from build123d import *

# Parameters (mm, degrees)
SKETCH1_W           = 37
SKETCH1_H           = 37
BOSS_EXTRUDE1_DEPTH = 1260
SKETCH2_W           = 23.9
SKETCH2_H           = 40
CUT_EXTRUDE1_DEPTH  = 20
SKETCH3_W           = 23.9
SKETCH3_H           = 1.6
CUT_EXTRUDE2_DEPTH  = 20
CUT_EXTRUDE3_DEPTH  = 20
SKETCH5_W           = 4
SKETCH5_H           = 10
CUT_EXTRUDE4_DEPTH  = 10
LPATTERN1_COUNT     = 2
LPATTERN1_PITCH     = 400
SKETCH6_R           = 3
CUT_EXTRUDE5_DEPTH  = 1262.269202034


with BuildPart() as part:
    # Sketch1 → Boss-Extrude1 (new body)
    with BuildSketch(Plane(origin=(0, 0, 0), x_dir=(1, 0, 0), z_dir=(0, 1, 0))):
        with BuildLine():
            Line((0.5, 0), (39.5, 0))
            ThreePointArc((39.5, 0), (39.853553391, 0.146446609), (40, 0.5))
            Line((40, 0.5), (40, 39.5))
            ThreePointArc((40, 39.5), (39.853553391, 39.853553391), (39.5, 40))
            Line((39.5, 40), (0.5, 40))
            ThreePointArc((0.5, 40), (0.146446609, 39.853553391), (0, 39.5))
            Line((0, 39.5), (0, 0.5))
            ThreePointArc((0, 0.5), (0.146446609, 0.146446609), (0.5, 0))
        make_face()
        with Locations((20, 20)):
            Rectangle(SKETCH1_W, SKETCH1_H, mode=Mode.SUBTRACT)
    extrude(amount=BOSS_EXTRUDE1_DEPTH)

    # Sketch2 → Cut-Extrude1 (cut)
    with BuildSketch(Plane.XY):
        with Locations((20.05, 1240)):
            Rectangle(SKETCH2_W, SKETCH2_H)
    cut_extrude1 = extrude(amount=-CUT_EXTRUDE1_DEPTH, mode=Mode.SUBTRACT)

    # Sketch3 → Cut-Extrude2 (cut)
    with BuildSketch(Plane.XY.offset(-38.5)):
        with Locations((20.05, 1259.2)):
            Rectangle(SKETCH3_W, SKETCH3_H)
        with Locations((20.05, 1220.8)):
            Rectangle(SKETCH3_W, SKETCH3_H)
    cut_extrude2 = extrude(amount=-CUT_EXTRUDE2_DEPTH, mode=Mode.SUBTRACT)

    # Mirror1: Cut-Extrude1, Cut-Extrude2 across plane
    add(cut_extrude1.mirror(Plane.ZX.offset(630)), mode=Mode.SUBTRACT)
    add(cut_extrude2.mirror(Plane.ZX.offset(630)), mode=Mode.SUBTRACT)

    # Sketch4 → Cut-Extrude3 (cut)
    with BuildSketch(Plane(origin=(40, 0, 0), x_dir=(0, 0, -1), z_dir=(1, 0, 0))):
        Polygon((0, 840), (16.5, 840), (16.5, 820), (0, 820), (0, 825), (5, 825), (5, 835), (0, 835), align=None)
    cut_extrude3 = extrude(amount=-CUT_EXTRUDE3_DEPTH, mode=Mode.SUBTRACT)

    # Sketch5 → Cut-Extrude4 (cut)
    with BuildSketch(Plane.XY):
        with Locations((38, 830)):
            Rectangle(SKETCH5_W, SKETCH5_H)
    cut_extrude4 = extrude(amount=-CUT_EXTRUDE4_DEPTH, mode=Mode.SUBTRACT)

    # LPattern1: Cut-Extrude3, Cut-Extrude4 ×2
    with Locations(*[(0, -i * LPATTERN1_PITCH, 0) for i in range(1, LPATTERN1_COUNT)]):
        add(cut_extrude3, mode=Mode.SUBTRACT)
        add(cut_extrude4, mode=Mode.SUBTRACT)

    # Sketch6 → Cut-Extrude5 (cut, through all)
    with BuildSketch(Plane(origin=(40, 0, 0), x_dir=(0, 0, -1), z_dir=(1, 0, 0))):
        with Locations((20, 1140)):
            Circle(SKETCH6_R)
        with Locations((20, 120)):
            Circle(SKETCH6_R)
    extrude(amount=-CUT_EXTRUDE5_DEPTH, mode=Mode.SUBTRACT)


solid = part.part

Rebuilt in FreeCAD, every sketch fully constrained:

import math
import FreeCAD as App
import Part
import Sketcher
from FreeCAD import Vector

doc = App.newDocument("Part")
body = doc.addObject("PartDesign::Body", "Body")

# Sketch on XZ plane
sketch1 = doc.addObject("Sketcher::SketchObject", "Sketch")
body.addObject(sketch1)
sketch1.AttachmentSupport = (doc.XZ_Plane, [""])
sketch1.MapMode = "FlatFace"
sketch1.addGeometry(Part.LineSegment(Vector(0.5, 0, 0), Vector(39.5, 0, 0)), False)
sketch1.addGeometry(Part.ArcOfCircle(Part.Circle(Vector(39.5, -0.5, 0), Vector(0, 0, 1), 0.5), math.radians(0), math.radians(90)), False)
sketch1.addGeometry(Part.LineSegment(Vector(40, -0.5, 0), Vector(40, -39.5, 0)), False)
sketch1.addGeometry(Part.ArcOfCircle(Part.Circle(Vector(39.5, -39.5, 0), Vector(0, 0, 1), 0.5), math.radians(-90), math.radians(0)), False)
sketch1.addGeometry(Part.LineSegment(Vector(39.5, -40, 0), Vector(0.5, -40, 0)), False)
sketch1.addGeometry(Part.ArcOfCircle(Part.Circle(Vector(0.5, -39.5, 0), Vector(0, 0, 1), 0.5), math.radians(180), math.radians(270)), False)
sketch1.addGeometry(Part.LineSegment(Vector(0, -39.5, 0), Vector(0, -0.5, 0)), False)
sketch1.addGeometry(Part.ArcOfCircle(Part.Circle(Vector(0.5, -0.5, 0), Vector(0, 0, 1), 0.5), math.radians(90), math.radians(180)), False)
sketch1.addGeometry(Part.LineSegment(Vector(38.5, -1.5, 0), Vector(1.5, -1.5, 0)), False)
sketch1.addGeometry(Part.LineSegment(Vector(1.5, -1.5, 0), Vector(1.5, -38.5, 0)), False)
sketch1.addGeometry(Part.LineSegment(Vector(1.5, -38.5, 0), Vector(38.5, -38.5, 0)), False)
sketch1.addGeometry(Part.LineSegment(Vector(38.5, -38.5, 0), Vector(38.5, -1.5, 0)), False)
sketch1.addConstraint(Sketcher.Constraint("Tangent", 0, 2, 1, 2))
sketch1.addConstraint(Sketcher.Constraint("Tangent", 1, 1, 2, 1))
sketch1.addConstraint(Sketcher.Constraint("Tangent", 2, 2, 3, 2))
sketch1.addConstraint(Sketcher.Constraint("Tangent", 3, 1, 4, 1))
sketch1.addConstraint(Sketcher.Constraint("Tangent", 4, 2, 5, 2))
sketch1.addConstraint(Sketcher.Constraint("Tangent", 5, 1, 6, 1))
sketch1.addConstraint(Sketcher.Constraint("Tangent", 6, 2, 7, 2))
sketch1.addConstraint(Sketcher.Constraint("Tangent", 7, 1, 0, 1))
sketch1.addConstraint(Sketcher.Constraint("Coincident", 8, 2, 9, 1))
sketch1.addConstraint(Sketcher.Constraint("Coincident", 9, 2, 10, 1))
sketch1.addConstraint(Sketcher.Constraint("Coincident", 10, 2, 11, 1))
sketch1.addConstraint(Sketcher.Constraint("Coincident", 11, 2, 8, 1))
sketch1.addConstraint(Sketcher.Constraint("Horizontal", 0))
sketch1.addConstraint(Sketcher.Constraint("Vertical", 2))
sketch1.addConstraint(Sketcher.Constraint("Horizontal", 4))
sketch1.addConstraint(Sketcher.Constraint("Vertical", 6))
sketch1.addConstraint(Sketcher.Constraint("Horizontal", 8))
sketch1.addConstraint(Sketcher.Constraint("Vertical", 9))
sketch1.addConstraint(Sketcher.Constraint("Horizontal", 10))
sketch1.addConstraint(Sketcher.Constraint("Vertical", 11))
sketch1.addConstraint(Sketcher.Constraint("Equal", 1, 3))
sketch1.addConstraint(Sketcher.Constraint("Equal", 3, 5))
sketch1.addConstraint(Sketcher.Constraint("Equal", 5, 7))
sketch1.addConstraint(Sketcher.Constraint("PointOnObject", 0, 2, -1))
sketch1.addConstraint(Sketcher.Constraint("PointOnObject", 5, 1, -2))
sketch1.addConstraint(Sketcher.Constraint("Equal", 4, 2))
sketch1.addConstraint(Sketcher.Constraint("Equal", 10, 9))
sketch1.addConstraint(Sketcher.Constraint("Radius", 1, 0.5))
sketch1.addConstraint(Sketcher.Constraint("DistanceX", 0, 1, 0, 2, 39.0))
sketch1.addConstraint(Sketcher.Constraint("DistanceX", 8, 2, 8, 1, 37.0))
sketch1.addConstraint(Sketcher.Constraint("DistanceX", 7, 3, 8, 2, 1.0))
sketch1.addConstraint(Sketcher.Constraint("DistanceY", 8, 2, 7, 3, 1.0))
pad1 = doc.addObject("PartDesign::Pad", "Pad")
body.addObject(pad1)
pad1.Profile = sketch1
pad1.Length = 1260
pad1.Reversed = True

# Sketch on XY plane
sketch2 = doc.addObject("Sketcher::SketchObject", "Sketch001")
body.addObject(sketch2)
sketch2.AttachmentSupport = (doc.XY_Plane, [""])
sketch2.MapMode = "FlatFace"
sketch2.addGeometry(Part.LineSegment(Vector(8, 1260, 0), Vector(8, 1220, 0)), False)
sketch2.addGeometry(Part.LineSegment(Vector(8, 1220, 0), Vector(32, 1220, 0)), False)
sketch2.addGeometry(Part.LineSegment(Vector(32, 1220, 0), Vector(32, 1260, 0)), False)
sketch2.addGeometry(Part.LineSegment(Vector(32, 1260, 0), Vector(8, 1260, 0)), False)
sketch2.addConstraint(Sketcher.Constraint("Coincident", 0, 2, 1, 1))
sketch2.addConstraint(Sketcher.Constraint("Coincident", 1, 2, 2, 1))
sketch2.addConstraint(Sketcher.Constraint("Coincident", 2, 2, 3, 1))
sketch2.addConstraint(Sketcher.Constraint("Coincident", 3, 2, 0, 1))
sketch2.addConstraint(Sketcher.Constraint("Vertical", 0))
sketch2.addConstraint(Sketcher.Constraint("Horizontal", 1))
sketch2.addConstraint(Sketcher.Constraint("Vertical", 2))
sketch2.addConstraint(Sketcher.Constraint("Horizontal", 3))
sketch2.addConstraint(Sketcher.Constraint("DistanceY", 0, 2, 0, 1, 40.0))
sketch2.addConstraint(Sketcher.Constraint("DistanceX", 1, 1, 1, 2, 23.9))
sketch2.addConstraint(Sketcher.Constraint("DistanceY", -1, 1, 0, 2, 1220.0))
sketch2.addConstraint(Sketcher.Constraint("DistanceX", -1, 1, 1, 2, 32.0))
pocket1 = doc.addObject("PartDesign::Pocket", "Pocket")
body.addObject(pocket1)
pocket1.Profile = sketch2
pocket1.Length = 20

# Sketch on XY plane
sketch3 = doc.addObject("Sketcher::SketchObject", "Sketch002")
body.addObject(sketch3)
sketch3.AttachmentSupport = (doc.XY_Plane, [""])
sketch3.MapMode = "FlatFace"
sketch3.AttachmentOffset = App.Placement(Vector(0, 0, -38.5), App.Rotation())
sketch3.addGeometry(Part.LineSegment(Vector(8.1, 1260, 0), Vector(8.1, 1258.4, 0)), False)
sketch3.addGeometry(Part.LineSegment(Vector(8.1, 1258.4, 0), Vector(32, 1258.4, 0)), False)
sketch3.addGeometry(Part.LineSegment(Vector(32, 1258.4, 0), Vector(32, 1260, 0)), False)
sketch3.addGeometry(Part.LineSegment(Vector(32, 1260, 0), Vector(8.1, 1260, 0)), False)
sketch3.addGeometry(Part.LineSegment(Vector(8.1, 1221.6, 0), Vector(8.1, 1220, 0)), False)
sketch3.addGeometry(Part.LineSegment(Vector(8.1, 1220, 0), Vector(32, 1220, 0)), False)
sketch3.addGeometry(Part.LineSegment(Vector(32, 1220, 0), Vector(32, 1221.6, 0)), False)
sketch3.addGeometry(Part.LineSegment(Vector(32, 1221.6, 0), Vector(8.1, 1221.6, 0)), False)
sketch3.addConstraint(Sketcher.Constraint("Coincident", 0, 2, 1, 1))
sketch3.addConstraint(Sketcher.Constraint("Coincident", 1, 2, 2, 1))
sketch3.addConstraint(Sketcher.Constraint("Coincident", 2, 2, 3, 1))
sketch3.addConstraint(Sketcher.Constraint("Coincident", 3, 2, 0, 1))
sketch3.addConstraint(Sketcher.Constraint("Coincident", 4, 2, 5, 1))
sketch3.addConstraint(Sketcher.Constraint("Coincident", 5, 2, 6, 1))
sketch3.addConstraint(Sketcher.Constraint("Coincident", 6, 2, 7, 1))
sketch3.addConstraint(Sketcher.Constraint("Coincident", 7, 2, 4, 1))
sketch3.addConstraint(Sketcher.Constraint("Vertical", 0))
sketch3.addConstraint(Sketcher.Constraint("Horizontal", 1))
sketch3.addConstraint(Sketcher.Constraint("Vertical", 2))
sketch3.addConstraint(Sketcher.Constraint("Horizontal", 3))
sketch3.addConstraint(Sketcher.Constraint("Vertical", 4))
sketch3.addConstraint(Sketcher.Constraint("Horizontal", 5))
sketch3.addConstraint(Sketcher.Constraint("Vertical", 6))
sketch3.addConstraint(Sketcher.Constraint("Horizontal", 7))
sketch3.addConstraint(Sketcher.Constraint("Vertical", 3, 2, 4, 2))
sketch3.addConstraint(Sketcher.Constraint("Vertical", 2, 2, 5, 2))
sketch3.addConstraint(Sketcher.Constraint("Equal", 2, 4))
sketch3.addConstraint(Sketcher.Constraint("DistanceX", 1, 1, 1, 2, 23.9))
sketch3.addConstraint(Sketcher.Constraint("DistanceY", 0, 2, 0, 1, 1.6))
sketch3.addConstraint(Sketcher.Constraint("DistanceX", -1, 1, 1, 2, 32.0))
sketch3.addConstraint(Sketcher.Constraint("DistanceY", -1, 1, 2, 2, 1260.0))
sketch3.addConstraint(Sketcher.Constraint("DistanceY", -1, 1, 4, 2, 1220.0))
pocket2 = doc.addObject("PartDesign::Pocket", "Pocket001")
body.addObject(pocket2)
pocket2.Profile = sketch3
pocket2.Length = 20
doc.recompute()

datumplane = doc.addObject("PartDesign::Plane", "DatumPlane")
body.addObject(datumplane)
datumplane.AttachmentSupport = (doc.XZ_Plane, [""])
datumplane.MapMode = "FlatFace"
datumplane.AttachmentOffset = App.Placement(Vector(0, 0, -630), App.Rotation())
mirrored = doc.addObject("PartDesign::Mirrored", "Mirrored")
body.addObject(mirrored)
mirrored.Originals = [pocket1, pocket2]
mirrored.MirrorPlane = (datumplane, [""])
body.Tip = mirrored

# Sketch on YZ plane
sketch4 = doc.addObject("Sketcher::SketchObject", "Sketch003")
body.addObject(sketch4)
sketch4.AttachmentSupport = (doc.YZ_Plane, [""])
sketch4.MapMode = "FlatFace"
sketch4.AttachmentOffset = App.Placement(Vector(0, 0, 40), App.Rotation())
sketch4.addGeometry(Part.LineSegment(Vector(840, -16, 0), Vector(840, 0, 0)), False)
sketch4.addGeometry(Part.LineSegment(Vector(840, 0, 0), Vector(835, 0, 0)), False)
sketch4.addGeometry(Part.LineSegment(Vector(835, 0, 0), Vector(835, -5, 0)), False)
sketch4.addGeometry(Part.LineSegment(Vector(835, -5, 0), Vector(825, -5, 0)), False)
sketch4.addGeometry(Part.LineSegment(Vector(825, -5, 0), Vector(825, 0, 0)), False)
sketch4.addGeometry(Part.LineSegment(Vector(825, 0, 0), Vector(820, 0, 0)), False)
sketch4.addGeometry(Part.LineSegment(Vector(820, 0, 0), Vector(820, -16, 0)), False)
sketch4.addGeometry(Part.LineSegment(Vector(820, -16, 0), Vector(840, -16, 0)), False)
sketch4.addConstraint(Sketcher.Constraint("Coincident", 0, 2, 1, 1))
sketch4.addConstraint(Sketcher.Constraint("Coincident", 1, 2, 2, 1))
sketch4.addConstraint(Sketcher.Constraint("Coincident", 2, 2, 3, 1))
sketch4.addConstraint(Sketcher.Constraint("Coincident", 3, 2, 4, 1))
sketch4.addConstraint(Sketcher.Constraint("Coincident", 4, 2, 5, 1))
sketch4.addConstraint(Sketcher.Constraint("Coincident", 5, 2, 6, 1))
sketch4.addConstraint(Sketcher.Constraint("Coincident", 6, 2, 7, 1))
sketch4.addConstraint(Sketcher.Constraint("Coincident", 7, 2, 0, 1))
sketch4.addConstraint(Sketcher.Constraint("Vertical", 0))
sketch4.addConstraint(Sketcher.Constraint("Horizontal", 1))
sketch4.addConstraint(Sketcher.Constraint("Vertical", 2))
sketch4.addConstraint(Sketcher.Constraint("Horizontal", 3))
sketch4.addConstraint(Sketcher.Constraint("Vertical", 4))
sketch4.addConstraint(Sketcher.Constraint("Horizontal", 5))
sketch4.addConstraint(Sketcher.Constraint("Vertical", 6))
sketch4.addConstraint(Sketcher.Constraint("Horizontal", 7))
sketch4.addConstraint(Sketcher.Constraint("PointOnObject", 0, 2, -1))
sketch4.addConstraint(Sketcher.Constraint("PointOnObject", 4, 2, -1))
sketch4.addConstraint(Sketcher.Constraint("Equal", 1, 5))
sketch4.addConstraint(Sketcher.Constraint("Equal", 5, 2))
sketch4.addConstraint(Sketcher.Constraint("DistanceX", 1, 2, 1, 1, 5.0))
sketch4.addConstraint(Sketcher.Constraint("DistanceX", 3, 2, 3, 1, 10.0))
sketch4.addConstraint(Sketcher.Constraint("DistanceY", 0, 1, 0, 2, 16.5))
sketch4.addConstraint(Sketcher.Constraint("DistanceX", -1, 1, 0, 2, 840.0))
pocket3 = doc.addObject("PartDesign::Pocket", "Pocket002")
body.addObject(pocket3)
pocket3.Profile = sketch4
pocket3.Length = 20

# Sketch on XY plane
sketch5 = doc.addObject("Sketcher::SketchObject", "Sketch004")
body.addObject(sketch5)
sketch5.AttachmentSupport = (doc.XY_Plane, [""])
sketch5.MapMode = "FlatFace"
sketch5.addGeometry(Part.LineSegment(Vector(36, 835, 0), Vector(36, 825, 0)), False)
sketch5.addGeometry(Part.LineSegment(Vector(36, 825, 0), Vector(40, 825, 0)), False)
sketch5.addGeometry(Part.LineSegment(Vector(40, 825, 0), Vector(40, 835, 0)), False)
sketch5.addGeometry(Part.LineSegment(Vector(40, 835, 0), Vector(36, 835, 0)), False)
sketch5.addConstraint(Sketcher.Constraint("Coincident", 0, 2, 1, 1))
sketch5.addConstraint(Sketcher.Constraint("Coincident", 1, 2, 2, 1))
sketch5.addConstraint(Sketcher.Constraint("Coincident", 2, 2, 3, 1))
sketch5.addConstraint(Sketcher.Constraint("Coincident", 3, 2, 0, 1))
sketch5.addConstraint(Sketcher.Constraint("Vertical", 0))
sketch5.addConstraint(Sketcher.Constraint("Horizontal", 1))
sketch5.addConstraint(Sketcher.Constraint("Vertical", 2))
sketch5.addConstraint(Sketcher.Constraint("Horizontal", 3))
sketch5.addConstraint(Sketcher.Constraint("DistanceX", 1, 1, 1, 2, 4.0))
sketch5.addConstraint(Sketcher.Constraint("DistanceY", 0, 2, 0, 1, 10.0))
sketch5.addConstraint(Sketcher.Constraint("DistanceX", -1, 1, 0, 2, 36.0))
sketch5.addConstraint(Sketcher.Constraint("DistanceY", -1, 1, 0, 2, 825.0))
pocket4 = doc.addObject("PartDesign::Pocket", "Pocket003")
body.addObject(pocket4)
pocket4.Profile = sketch5
pocket4.Length = 10
doc.recompute()

linearpattern = doc.addObject("PartDesign::LinearPattern", "LinearPattern")
body.addObject(linearpattern)
linearpattern.Originals = [pocket3, pocket4]
linearpattern.Direction = (doc.Y_Axis, [""])
linearpattern.Mode = "offset"
linearpattern.Offset = 400
linearpattern.Occurrences = 2
linearpattern.Reversed = True
body.Tip = linearpattern

# Sketch on YZ plane
sketch6 = doc.addObject("Sketcher::SketchObject", "Sketch005")
body.addObject(sketch6)
sketch6.AttachmentSupport = (doc.YZ_Plane, [""])
sketch6.MapMode = "FlatFace"
sketch6.AttachmentOffset = App.Placement(Vector(0, 0, 40), App.Rotation())
sketch6.addGeometry(Part.Circle(Vector(1140, -20, 0), Vector(0, 0, 1), 3), False)
sketch6.addGeometry(Part.Circle(Vector(120, -20, 0), Vector(0, 0, 1), 3), False)
sketch6.addConstraint(Sketcher.Constraint("Equal", 0, 1))
sketch6.addConstraint(Sketcher.Constraint("Horizontal", 0, 3, 1, 3))
sketch6.addConstraint(Sketcher.Constraint("Diameter", 0, 6.0))
sketch6.addConstraint(Sketcher.Constraint("DistanceX", -1, 1, 0, 3, 1140.0))
sketch6.addConstraint(Sketcher.Constraint("DistanceY", 0, 3, -1, 1, 20.0))
sketch6.addConstraint(Sketcher.Constraint("DistanceX", -1, 1, 1, 3, 120.0))
pocket5 = doc.addObject("PartDesign::Pocket", "Pocket004")
body.addObject(pocket5)
pocket5.Profile = sketch6
pocket5.Type = "ThroughAll"

doc.recompute()
